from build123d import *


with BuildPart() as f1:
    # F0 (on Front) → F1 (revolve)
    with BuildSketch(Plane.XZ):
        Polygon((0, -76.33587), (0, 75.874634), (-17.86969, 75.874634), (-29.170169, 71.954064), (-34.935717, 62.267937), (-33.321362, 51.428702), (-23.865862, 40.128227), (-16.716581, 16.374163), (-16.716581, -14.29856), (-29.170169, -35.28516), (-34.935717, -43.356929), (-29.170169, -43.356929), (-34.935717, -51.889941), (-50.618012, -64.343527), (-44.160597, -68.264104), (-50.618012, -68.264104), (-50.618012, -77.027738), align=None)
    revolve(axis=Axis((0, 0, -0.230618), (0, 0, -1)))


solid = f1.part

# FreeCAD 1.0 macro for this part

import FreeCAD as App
import Part
import Sketcher
Q = App.Units.Quantity

doc = App.newDocument("Part")
body = doc.addObject("PartDesign::Body", "Body")

# Sketch on XZ plane
sketch1 = body.newObject("Sketcher::SketchObject", "Sketch")
sketch1.AttachmentSupport = (doc.getObject("XZ_Plane"), [""])
sketch1.MapMode = "FlatFace"
sketch1.addGeometry([
    Part.LineSegment(App.Vector(0, -76, 0), App.Vector(0, 76, 0)),  # 0
    Part.LineSegment(App.Vector(0, 76, 0), App.Vector(-18, 76, 0)),  # 1
    Part.LineSegment(App.Vector(-18, 76, 0), App.Vector(-29, 72, 0)),  # 2
    Part.LineSegment(App.Vector(-29, 72, 0), App.Vector(-35, 62, 0)),  # 3
    Part.LineSegment(App.Vector(-35, 62, 0), App.Vector(-33, 51, 0)),  # 4
    Part.LineSegment(App.Vector(-33, 51, 0), App.Vector(-24, 40, 0)),  # 5
    Part.LineSegment(App.Vector(-24, 40, 0), App.Vector(-17, 16, 0)),  # 6
    Part.LineSegment(App.Vector(-17, 16, 0), App.Vector(-17, -14, 0)),  # 7
    Part.LineSegment(App.Vector(-17, -14, 0), App.Vector(-29, -35, 0)),  # 8
    Part.LineSegment(App.Vector(-29, -35, 0), App.Vector(-35, -43, 0)),  # 9
    Part.LineSegment(App.Vector(-35, -43, 0), App.Vector(-29, -43, 0)),  # 10
    Part.LineSegment(App.Vector(-29, -43, 0), App.Vector(-35, -52, 0)),  # 11
    Part.LineSegment(App.Vector(-35, -52, 0), App.Vector(-51, -64, 0)),  # 12
    Part.LineSegment(App.Vector(-51, -64, 0), App.Vector(-44, -68, 0)),  # 13
    Part.LineSegment(App.Vector(-44, -68, 0), App.Vector(-51, -68, 0)),  # 14
    Part.LineSegment(App.Vector(-51, -68, 0), App.Vector(-51, -77, 0)),  # 15
    Part.LineSegment(App.Vector(-51, -77, 0), App.Vector(0, -76, 0)),  # 16
], False)
sketch1.addConstraint([
    Sketcher.Constraint("Coincident", 0, 2, 1, 1),
    Sketcher.Constraint("Coincident", 1, 2, 2, 1),
    Sketcher.Constraint("Coincident", 2, 2, 3, 1),
    Sketcher.Constraint("Coincident", 3, 2, 4, 1),
    Sketcher.Constraint("Coincident", 4, 2, 5, 1),
    Sketcher.Constraint("Coincident", 5, 2, 6, 1),
    Sketcher.Constraint("Coincident", 6, 2, 7, 1),
    Sketcher.Constraint("Coincident", 7, 2, 8, 1),
    Sketcher.Constraint("Coincident", 8, 2, 9, 1),
    Sketcher.Constraint("Coincident", 9, 2, 10, 1),
    Sketcher.Constraint("Coincident", 10, 2, 11, 1),
    Sketcher.Constraint("Coincident", 11, 2, 12, 1),
    Sketcher.Constraint("Coincident", 12, 2, 13, 1),
    Sketcher.Constraint("Coincident", 13, 2, 14, 1),
    Sketcher.Constraint("Coincident", 14, 2, 15, 1),
    Sketcher.Constraint("Coincident", 15, 2, 16, 1),
    Sketcher.Constraint("Coincident", 16, 2, 0, 1),
    Sketcher.Constraint("Vertical", 0),
    Sketcher.Constraint("Horizontal", 1),
    Sketcher.Constraint("Vertical", 7),
    Sketcher.Constraint("Horizontal", 10),
    Sketcher.Constraint("Horizontal", 14),
    Sketcher.Constraint("Vertical", 15),
    Sketcher.Constraint("PointOnObject", 0, 2, -2),
    Sketcher.Constraint("Vertical", 2, 2, 8, 2),
    Sketcher.Constraint("Vertical", 3, 2, 9, 2),
    Sketcher.Constraint("Vertical", 8, 2, 10, 2),
    Sketcher.Constraint("Vertical", 9, 2, 11, 2),
    Sketcher.Constraint("Vertical", 12, 2, 14, 2),
    Sketcher.Constraint("DistanceX", 1, 2, 1, 1, Q("17.86969 mm")),
    Sketcher.Constraint("DistanceX", 4, 2, 5, 2, Q("9.4555 mm")),
    Sketcher.Constraint("DistanceY", 6, 2, 2, 2, Q("55.579901 mm")),
    Sketcher.Constraint("DistanceY", 8, 2, 7, 2, Q("20.9866 mm")),
    Sketcher.Constraint("Distance", 2, Q("11.961258 mm")),
    Sketcher.Constraint("Distance", 5, Q("14.734559 mm")),
    Sketcher.Constraint("Distance", 12, Q("20.025638 mm")),
    Sketcher.Constraint("Distance", 13, Q("7.554411 mm")),
    Sketcher.Constraint("Distance", 16, Q("50.62274 mm")),
    Sketcher.Constraint("DistanceX", 10, 1, 10, 2, Q("5.765548 mm")),
    Sketcher.Constraint("DistanceX", 14, 2, 14, 1, Q("6.457415 mm")),
    Sketcher.Constraint("DistanceY", 0, 1, 0, 2, Q("152.210504 mm")),
    Sketcher.Constraint("DistanceY", 7, 2, 7, 1, Q("30.672723 mm")),
    Sketcher.Constraint("DistanceY", 15, 2, 15, 1, Q("8.763634 mm")),
    Sketcher.Constraint("DistanceX", 2, 2, -1, 1, Q("29.170169 mm")),
    Sketcher.Constraint("DistanceX", 5, 2, -1, 1, Q("23.865862 mm")),
    Sketcher.Constraint("DistanceX", 6, 2, -1, 1, Q("16.716581 mm")),
    Sketcher.Constraint("DistanceY", 7, 2, -1, 1, Q("14.29856 mm")),
    Sketcher.Constraint("DistanceY", 9, 2, -1, 1, Q("43.356929 mm")),
    Sketcher.Constraint("DistanceY", 11, 2, -1, 1, Q("51.889941 mm")),
    Sketcher.Constraint("DistanceY", 4, 2, 1, 2, Q("24.445932 mm")),
    Sketcher.Constraint("DistanceY", 5, 2, 3, 2, Q("22.13971 mm")),
])
revolution = body.newObject("PartDesign::Revolution", "Revolution")
revolution.Profile = sketch1
revolution.ReferenceAxis = (sketch1, ["V_Axis"])
revolution.Angle = 360

doc.recompute()
